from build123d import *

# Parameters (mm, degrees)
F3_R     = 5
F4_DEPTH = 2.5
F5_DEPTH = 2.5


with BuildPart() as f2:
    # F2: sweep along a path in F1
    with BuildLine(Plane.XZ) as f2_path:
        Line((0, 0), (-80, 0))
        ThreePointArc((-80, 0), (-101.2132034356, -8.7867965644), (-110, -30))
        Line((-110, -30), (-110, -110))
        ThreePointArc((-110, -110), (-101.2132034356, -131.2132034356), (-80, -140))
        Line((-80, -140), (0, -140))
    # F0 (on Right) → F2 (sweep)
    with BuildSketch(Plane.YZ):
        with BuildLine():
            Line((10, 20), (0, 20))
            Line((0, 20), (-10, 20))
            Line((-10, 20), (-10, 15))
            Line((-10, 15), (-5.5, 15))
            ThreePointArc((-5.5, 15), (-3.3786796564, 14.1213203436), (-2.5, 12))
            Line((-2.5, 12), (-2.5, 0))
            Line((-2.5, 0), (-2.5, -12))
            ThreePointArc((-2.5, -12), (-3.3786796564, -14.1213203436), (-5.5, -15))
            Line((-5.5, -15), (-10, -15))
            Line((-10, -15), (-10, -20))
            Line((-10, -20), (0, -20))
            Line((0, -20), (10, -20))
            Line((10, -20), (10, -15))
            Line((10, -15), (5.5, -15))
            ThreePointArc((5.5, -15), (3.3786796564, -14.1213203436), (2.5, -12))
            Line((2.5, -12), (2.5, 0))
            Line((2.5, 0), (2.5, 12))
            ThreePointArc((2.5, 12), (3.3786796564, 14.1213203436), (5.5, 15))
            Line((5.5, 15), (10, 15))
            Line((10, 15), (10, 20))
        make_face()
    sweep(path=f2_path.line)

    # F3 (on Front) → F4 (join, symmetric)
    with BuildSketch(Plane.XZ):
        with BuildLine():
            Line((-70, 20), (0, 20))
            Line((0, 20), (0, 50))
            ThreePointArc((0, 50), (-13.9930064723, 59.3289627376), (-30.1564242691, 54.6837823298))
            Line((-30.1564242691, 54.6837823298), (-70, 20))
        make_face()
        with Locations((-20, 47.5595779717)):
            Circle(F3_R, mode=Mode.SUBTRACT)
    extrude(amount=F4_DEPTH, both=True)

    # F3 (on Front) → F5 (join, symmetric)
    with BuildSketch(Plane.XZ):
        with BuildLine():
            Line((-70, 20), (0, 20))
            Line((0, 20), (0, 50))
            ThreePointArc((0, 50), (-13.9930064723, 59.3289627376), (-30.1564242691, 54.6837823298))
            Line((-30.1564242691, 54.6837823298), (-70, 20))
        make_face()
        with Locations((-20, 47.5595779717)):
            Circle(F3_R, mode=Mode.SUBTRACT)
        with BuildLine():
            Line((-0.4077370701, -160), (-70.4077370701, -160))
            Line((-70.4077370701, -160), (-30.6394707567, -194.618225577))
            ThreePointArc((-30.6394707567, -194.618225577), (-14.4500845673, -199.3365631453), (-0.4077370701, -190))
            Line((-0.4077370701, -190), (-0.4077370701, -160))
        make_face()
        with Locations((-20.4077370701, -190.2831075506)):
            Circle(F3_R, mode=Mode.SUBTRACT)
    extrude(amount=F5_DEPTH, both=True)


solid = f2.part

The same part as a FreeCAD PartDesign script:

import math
import FreeCAD as App
import Part
import Sketcher

V = App.Vector
Q = App.Units.Quantity

doc = App.newDocument("Part")
body = doc.addObject("PartDesign::Body", "Body")

# Sketch on YZ plane
sketch1 = body.newObject("Sketcher::SketchObject", "Sketch")
sketch1.AttachmentSupport = (doc.getObject("YZ_Plane"), [""])
sketch1.MapMode = "FlatFace"
sketch1.addGeometry(Part.LineSegment(V(10, 20, 0), V(-10, 20, 0)), False)
sketch1.addGeometry(Part.LineSegment(V(-10, 20, 0), V(-10, 15, 0)), False)
sketch1.addGeometry(Part.LineSegment(V(-10, 15, 0), V(-5.5, 15, 0)), False)
sketch1.addGeometry(Part.ArcOfCircle(Part.Circle(V(-5.5, 12, 0), V(0, 0, 1), 3), math.radians(0), math.radians(90)), False)
sketch1.addGeometry(Part.LineSegment(V(-2.5, 12, 0), V(-2.5, -12, 0)), False)
sketch1.addGeometry(Part.ArcOfCircle(Part.Circle(V(-5.5, -12, 0), V(0, 0, 1), 3), math.radians(-90), math.radians(0)), False)
sketch1.addGeometry(Part.LineSegment(V(-5.5, -15, 0), V(-10, -15, 0)), False)
sketch1.addGeometry(Part.LineSegment(V(-10, -15, 0), V(-10, -20, 0)), False)
sketch1.addGeometry(Part.LineSegment(V(-10, -20, 0), V(10, -20, 0)), False)
sketch1.addGeometry(Part.LineSegment(V(10, -20, 0), V(10, -15, 0)), False)
sketch1.addGeometry(Part.LineSegment(V(10, -15, 0), V(5.5, -15, 0)), False)
sketch1.addGeometry(Part.ArcOfCircle(Part.Circle(V(5.5, -12, 0), V(0, 0, 1), 3), math.radians(180), math.radians(270)), False)
sketch1.addGeometry(Part.LineSegment(V(2.5, -12, 0), V(2.5, 12, 0)), False)
sketch1.addGeometry(Part.ArcOfCircle(Part.Circle(V(5.5, 12, 0), V(0, 0, 1), 3), math.radians(90), math.radians(180)), False)
sketch1.addGeometry(Part.LineSegment(V(5.5, 15, 0), V(10, 15, 0)), False)
sketch1.addGeometry(Part.LineSegment(V(10, 15, 0), V(10, 20, 0)), False)
sketch1.addConstraint(Sketcher.Constraint("Coincident", 0, 2, 1, 1))
sketch1.addConstraint(Sketcher.Constraint("Coincident", 1, 2, 2, 1))
sketch1.addConstraint(Sketcher.Constraint("Tangent", 2, 2, 3, 2))
sketch1.addConstraint(Sketcher.Constraint("Tangent", 3, 1, 4, 1))
sketch1.addConstraint(Sketcher.Constraint("Tangent", 4, 2, 5, 2))
sketch1.addConstraint(Sketcher.Constraint("Tangent", 5, 1, 6, 1))
sketch1.addConstraint(Sketcher.Constraint("Coincident", 6, 2, 7, 1))
sketch1.addConstraint(Sketcher.Constraint("Coincident", 7, 2, 8, 1))
sketch1.addConstraint(Sketcher.Constraint("Coincident", 8, 2, 9, 1))
sketch1.addConstraint(Sketcher.Constraint("Coincident", 9, 2, 10, 1))
sketch1.addConstraint(Sketcher.Constraint("Tangent", 10, 2, 11, 2))
sketch1.addConstraint(Sketcher.Constraint("Tangent", 11, 1, 12, 1))
sketch1.addConstraint(Sketcher.Constraint("Tangent", 12, 2, 13, 2))
sketch1.addConstraint(Sketcher.Constraint("Tangent", 13, 1, 14, 1))
sketch1.addConstraint(Sketcher.Constraint("Coincident", 14, 2, 15, 1))
sketch1.addConstraint(Sketcher.Constraint("Coincident", 15, 2, 0, 1))
sketch1.addConstraint(Sketcher.Constraint("Horizontal", 0))
sketch1.addConstraint(Sketcher.Constraint("Vertical", 1))
sketch1.addConstraint(Sketcher.Constraint("Horizontal", 2))
sketch1.addConstraint(Sketcher.Constraint("Vertical", 4))
sketch1.addConstraint(Sketcher.Constraint("Horizontal", 6))
sketch1.addConstraint(Sketcher.Constraint("Vertical", 7))
sketch1.addConstraint(Sketcher.Constraint("Horizontal", 8))
sketch1.addConstraint(Sketcher.Constraint("Vertical", 9))
sketch1.addConstraint(Sketcher.Constraint("Horizontal", 10))
sketch1.addConstraint(Sketcher.Constraint("Vertical", 12))
sketch1.addConstraint(Sketcher.Constraint("Horizontal", 14))
sketch1.addConstraint(Sketcher.Constraint("Vertical", 15))
sketch1.addConstraint(Sketcher.Constraint("Equal", 3, 5))
sketch1.addConstraint(Sketcher.Constraint("Equal", 5, 11))
sketch1.addConstraint(Sketcher.Constraint("Equal", 11, 13))
sketch1.addConstraint(Sketcher.Constraint("Symmetric", 3, 3, 11, 3, -1, 1))
sketch1.addConstraint(Sketcher.Constraint("Symmetric", 0, 2, 8, 2, -1, 1))
sketch1.addConstraint(Sketcher.Constraint("Symmetric", 6, 2, 14, 2, -1, 1))
sketch1.addConstraint(Sketcher.Constraint("Symmetric", 6, 2, 9, 2, -2))
sketch1.addConstraint(Sketcher.Constraint("Radius", 3, Q("3 mm")))
sketch1.addConstraint(Sketcher.Constraint("DistanceX", 0, 2, 0, 1, Q("20 mm")))
sketch1.addConstraint(Sketcher.Constraint("DistanceY", 1, 2, 1, 1, Q("5 mm")))
sketch1.addConstraint(Sketcher.Constraint("DistanceY", 4, 2, 4, 1, Q("24 mm")))
sketch1.addConstraint(Sketcher.Constraint("DistanceX", 2, 1, 2, 2, Q("4.5 mm")))

# Sketch on XZ plane
sketch2 = body.newObject("Sketcher::SketchObject", "Sketch001")
sketch2.AttachmentSupport = (doc.getObject("XZ_Plane"), [""])
sketch2.MapMode = "FlatFace"
sketch2.addGeometry(Part.LineSegment(V(0, 0, 0), V(-80, 0, 0)), False)
sketch2.addGeometry(Part.ArcOfCircle(Part.Circle(V(-80, -30, 0), V(0, 0, 1), 30), math.radians(90), math.radians(180)), False)
sketch2.addGeometry(Part.LineSegment(V(-110, -30, 0), V(-110, -110, 0)), False)
sketch2.addGeometry(Part.ArcOfCircle(Part.Circle(V(-80, -110, 0), V(0, 0, 1), 30), math.radians(180), math.radians(270)), False)
sketch2.addGeometry(Part.LineSegment(V(-80, -140, 0), V(0, -140, 0)), False)
sketch2.addConstraint(Sketcher.Constraint("Tangent", 0, 2, 1, 1))
sketch2.addConstraint(Sketcher.Constraint("Tangent", 1, 2, 2, 1))
sketch2.addConstraint(Sketcher.Constraint("Tangent", 2, 2, 3, 1))
sketch2.addConstraint(Sketcher.Constraint("Tangent", 3, 2, 4, 1))
sketch2.addConstraint(Sketcher.Constraint("Horizontal", 0))
sketch2.addConstraint(Sketcher.Constraint("Vertical", 2))
sketch2.addConstraint(Sketcher.Constraint("Horizontal", 4))
sketch2.addConstraint(Sketcher.Constraint("Coincident", 0, 1, -1, 1))
sketch2.addConstraint(Sketcher.Constraint("Equal", 1, 3))
sketch2.addConstraint(Sketcher.Constraint("PointOnObject", 4, 2, -2))
sketch2.addConstraint(Sketcher.Constraint("Equal", 4, 2))
sketch2.addConstraint(Sketcher.Constraint("Radius", 1, Q("30 mm")))
sketch2.addConstraint(Sketcher.Constraint("DistanceX", 0, 2, 0, 1, Q("80 mm")))
doc.recompute()

additivepipe = body.newObject("PartDesign::AdditivePipe", "AdditivePipe")
additivepipe.Profile = sketch1
additivepipe.Spine = (sketch2, ["Edge1", "Edge2", "Edge3", "Edge4", "Edge5"])

# Sketch on XZ plane
sketch3 = body.newObject("Sketcher::SketchObject", "Sketch002")
sketch3.AttachmentSupport = (doc.getObject("XZ_Plane"), [""])
sketch3.MapMode = "FlatFace"
sketch3.addGeometry(Part.LineSegment(V(-70, 20, 0), V(0, 20, 0)), False)
sketch3.addGeometry(Part.LineSegment(V(0, 20, 0), V(0, 50, 0)), False)
sketch3.addGeometry(Part.ArcOfCircle(Part.Circle(V(-17.062529, 39.565916, 0), V(0, 0, 1), 20), math.radians(31.446637), math.radians(130.896511)), False)
sketch3.addGeometry(Part.LineSegment(V(-30.156424, 54.683782, 0), V(-70, 20, 0)), False)
sketch3.addGeometry(Part.Circle(V(-20, 47.559578, 0), V(0, 0, 1), 5), False)
sketch3.addConstraint(Sketcher.Constraint("Coincident", 0, 2, 1, 1))
sketch3.addConstraint(Sketcher.Constraint("Coincident", 1, 2, 2, 1))
sketch3.addConstraint(Sketcher.Constraint("Coincident", 2, 2, 3, 1))
sketch3.addConstraint(Sketcher.Constraint("Coincident", 3, 2, 0, 1))
sketch3.addConstraint(Sketcher.Constraint("Horizontal", 0))
sketch3.addConstraint(Sketcher.Constraint("Vertical", 1))
sketch3.addConstraint(Sketcher.Constraint("PointOnObject", 0, 2, -2))
sketch3.addConstraint(Sketcher.Constraint("Diameter", 4, Q("10 mm")))
sketch3.addConstraint(Sketcher.Constraint("Radius", 2, Q("20 mm")))
sketch3.addConstraint(Sketcher.Constraint("DistanceX", 0, 1, 0, 2, Q("70 mm")))
sketch3.addConstraint(Sketcher.Constraint("DistanceY", 1, 1, 1, 2, Q("30 mm")))
sketch3.addConstraint(Sketcher.Constraint("DistanceX", 4, 3, -1, 1, Q("20 mm")))
sketch3.addConstraint(Sketcher.Constraint("DistanceY", -1, 1, 0, 2, Q("20 mm")))
sketch3.addConstraint(Sketcher.Constraint("Distance", 3, Q("52.824949 mm")))
sketch3.addConstraint(Sketcher.Constraint("DistanceX", 2, 3, -1, 1, Q("17.062529 mm")))
sketch3.addConstraint(Sketcher.Constraint("DistanceY", -1, 1, 4, 3, Q("47.559578 mm")))
pad1 = body.newObject("PartDesign::Pad", "Pad")
pad1.Profile = sketch3
pad1.Length = 5
pad1.Midplane = True

# Sketch on XZ plane
sketch4 = body.newObject("Sketcher::SketchObject", "Sketch003")
sketch4.AttachmentSupport = (doc.getObject("XZ_Plane"), [""])
sketch4.MapMode = "FlatFace"
sketch4.addGeometry(Part.LineSegment(V(-70, 20, 0), V(0, 20, 0)), False)
sketch4.addGeometry(Part.LineSegment(V(0, 20, 0), V(0, 50, 0)), False)
sketch4.addGeometry(Part.ArcOfCircle(Part.Circle(V(-17.062529, 39.565916, 0), V(0, 0, 1), 20), math.radians(31.446637), math.radians(130.896511)), False)
sketch4.addGeometry(Part.LineSegment(V(-30.156424, 54.683782, 0), V(-70, 20, 0)), False)
sketch4.addGeometry(Part.Circle(V(-20, 47.559578, 0), V(0, 0, 1), 5), False)
sketch4.addGeometry(Part.LineSegment(V(-0.407737, -160, 0), V(-70.407737, -160, 0)), False)
sketch4.addGeometry(Part.LineSegment(V(-70.407737, -160, 0), V(-30.639471, -194.618226, 0)), False)
sketch4.addGeometry(Part.ArcOfCircle(Part.Circle(V(-17.470266, -179.565916, 0), V(0, 0, 1), 20), math.radians(-131.182549), math.radians(-31.446637)), False)
sketch4.addGeometry(Part.LineSegment(V(-0.407737, -190, 0), V(-0.407737, -160, 0)), False)
sketch4.addGeometry(Part.Circle(V(-20.407737, -190.283108, 0), V(0, 0, 1), 5), False)
sketch4.addConstraint(Sketcher.Constraint("Coincident", 0, 2, 1, 1))
sketch4.addConstraint(Sketcher.Constraint("Coincident", 1, 2, 2, 1))
sketch4.addConstraint(Sketcher.Constraint("Coincident", 2, 2, 3, 1))
sketch4.addConstraint(Sketcher.Constraint("Coincident", 3, 2, 0, 1))
sketch4.addConstraint(Sketcher.Constraint("Coincident", 5, 2, 6, 1))
sketch4.addConstraint(Sketcher.Constraint("Coincident", 6, 2, 7, 1))
sketch4.addConstraint(Sketcher.Constraint("Coincident", 7, 2, 8, 1))
sketch4.addConstraint(Sketcher.Constraint("Coincident", 8, 2, 5, 1))
sketch4.addConstraint(Sketcher.Constraint("Horizontal", 0))
sketch4.addConstraint(Sketcher.Constraint("Vertical", 1))
sketch4.addConstraint(Sketcher.Constraint("Horizontal", 5))
sketch4.addConstraint(Sketcher.Constraint("Vertical", 8))
sketch4.addConstraint(Sketcher.Constraint("Equal", 2, 7))
sketch4.addConstraint(Sketcher.Constraint("Equal", 4, 9))
sketch4.addConstraint(Sketcher.Constraint("PointOnObject", 0, 2, -2))
sketch4.addConstraint(Sketcher.Constraint("Equal", 0, 5))
sketch4.addConstraint(Sketcher.Constraint("Equal", 1, 8))
sketch4.addConstraint(Sketcher.Constraint("Diameter", 4, Q("10 mm")))
sketch4.addConstraint(Sketcher.Constraint("Radius", 2, Q("20 mm")))
sketch4.addConstraint(Sketcher.Constraint("DistanceX", 0, 1, 0, 2, Q("70 mm")))
sketch4.addConstraint(Sketcher.Constraint("DistanceY", 1, 1, 1, 2, Q("30 mm")))
sketch4.addConstraint(Sketcher.Constraint("DistanceX", 4, 3, -1, 1, Q("20 mm")))
sketch4.addConstraint(Sketcher.Constraint("DistanceY", -1, 1, 0, 2, Q("20 mm")))
sketch4.addConstraint(Sketcher.Constraint("DistanceY", 5, 2, -1, 1, Q("160 mm")))
sketch4.addConstraint(Sketcher.Constraint("DistanceX", 5, 2, 9, 3, Q("50 mm")))
sketch4.addConstraint(Sketcher.Constraint("Distance", 3, Q("52.824949 mm")))
sketch4.addConstraint(Sketcher.Constraint("DistanceX", 2, 3, -1, 1, Q("17.062529 mm")))
sketch4.addConstraint(Sketcher.Constraint("DistanceX", 6, 2, -1, 1, Q("30.639471 mm")))
sketch4.addConstraint(Sketcher.Constraint("DistanceY", 7, 3, 2, 3, Q("219.131831 mm")))
sketch4.addConstraint(Sketcher.Constraint("DistanceY", 9, 3, 7, 3, Q("10.717192 mm")))
sketch4.addConstraint(Sketcher.Constraint("DistanceX", 9, 3, 2, 3, Q("3.345208 mm")))
sketch4.addConstraint(Sketcher.Constraint("DistanceY", -1, 1, 4, 3, Q("47.559578 mm")))
pad2 = body.newObject("PartDesign::Pad", "Pad001")
pad2.Profile = sketch4
pad2.Length = 5
pad2.Midplane = True

doc.recompute()
